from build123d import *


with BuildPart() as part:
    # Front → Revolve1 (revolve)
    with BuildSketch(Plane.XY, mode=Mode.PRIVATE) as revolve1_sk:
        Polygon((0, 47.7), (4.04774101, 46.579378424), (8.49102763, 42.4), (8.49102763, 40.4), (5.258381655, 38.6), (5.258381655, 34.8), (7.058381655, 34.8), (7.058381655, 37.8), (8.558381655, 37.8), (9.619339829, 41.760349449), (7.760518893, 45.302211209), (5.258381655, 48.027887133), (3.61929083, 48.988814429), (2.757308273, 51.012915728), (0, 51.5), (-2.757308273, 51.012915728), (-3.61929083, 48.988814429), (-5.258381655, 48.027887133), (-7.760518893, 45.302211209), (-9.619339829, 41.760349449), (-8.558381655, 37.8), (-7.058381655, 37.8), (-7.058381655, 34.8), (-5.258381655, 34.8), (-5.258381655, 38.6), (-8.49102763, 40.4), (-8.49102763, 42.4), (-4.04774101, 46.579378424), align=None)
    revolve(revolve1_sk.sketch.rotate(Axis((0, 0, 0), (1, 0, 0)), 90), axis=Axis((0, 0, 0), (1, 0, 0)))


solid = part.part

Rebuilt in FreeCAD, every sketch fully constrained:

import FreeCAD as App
import Part
import Sketcher

V = App.Vector

doc = App.newDocument("Part")
body = doc.addObject("PartDesign::Body", "Body")

sketch1 = body.newObject("Sketcher::SketchObject", "Sketch")
sketch1.AttachmentSupport = (doc.getObject("XY_Plane"), [""])
sketch1.MapMode = "FlatFace"
sketch1.addGeometry([
    Part.LineSegment(V(0, 47.7, 0), V(4, 46.6, 0)),
    Part.LineSegment(V(4, 46.6, 0), V(8.5, 42.4, 0)),
    Part.LineSegment(V(8.5, 42.4, 0), V(8.5, 40.4, 0)),
    Part.LineSegment(V(8.5, 40.4, 0), V(5.3, 38.6, 0)),
    Part.LineSegment(V(5.3, 38.6, 0), V(5.3, 34.8, 0)),
    Part.LineSegment(V(5.3, 34.8, 0), V(7.1, 34.8, 0)),
    Part.LineSegment(V(7.1, 34.8, 0), V(7.1, 37.8, 0)),
    Part.LineSegment(V(7.1, 37.8, 0), V(8.6, 37.8, 0)),
    Part.LineSegment(V(8.6, 37.8, 0), V(9.6, 41.8, 0)),
    Part.LineSegment(V(9.6, 41.8, 0), V(7.8, 45.3, 0)),
    Part.LineSegment(V(7.8, 45.3, 0), V(5.3, 48, 0)),
    Part.LineSegment(V(5.3, 48, 0), V(3.6, 49, 0)),
    Part.LineSegment(V(3.6, 49, 0), V(2.8, 51, 0)),
    Part.LineSegment(V(2.8, 51, 0), V(0, 51.5, 0)),
    Part.LineSegment(V(0, 51.5, 0), V(-2.8, 51, 0)),
    Part.LineSegment(V(-2.8, 51, 0), V(-3.6, 49, 0)),
    Part.LineSegment(V(-3.6, 49, 0), V(-5.3, 48, 0)),
    Part.LineSegment(V(-5.3, 48, 0), V(-7.8, 45.3, 0)),
    Part.LineSegment(V(-7.8, 45.3, 0), V(-9.6, 41.8, 0)),
    Part.LineSegment(V(-9.6, 41.8, 0), V(-8.6, 37.8, 0)),
    Part.LineSegment(V(-8.6, 37.8, 0), V(-7.1, 37.8, 0)),
    Part.LineSegment(V(-7.1, 37.8, 0), V(-7.1, 34.8, 0)),
    Part.LineSegment(V(-7.1, 34.8, 0), V(-5.3, 34.8, 0)),
    Part.LineSegment(V(-5.3, 34.8, 0), V(-5.3, 38.6, 0)),
    Part.LineSegment(V(-5.3, 38.6, 0), V(-8.5, 40.4, 0)),
    Part.LineSegment(V(-8.5, 40.4, 0), V(-8.5, 42.4, 0)),
    Part.LineSegment(V(-8.5, 42.4, 0), V(-4, 46.6, 0)),
    Part.LineSegment(V(-4, 46.6, 0), V(0, 47.7, 0)),
], False)
sketch1.addConstraint([
    Sketcher.Constraint("Coincident", 0, 2, 1, 1),
    Sketcher.Constraint("Coincident", 1, 2, 2, 1),
    Sketcher.Constraint("Coincident", 2, 2, 3, 1),
    Sketcher.Constraint("Coincident", 3, 2, 4, 1),
    Sketcher.Constraint("Coincident", 4, 2, 5, 1),
    Sketcher.Constraint("Coincident", 5, 2, 6, 1),
    Sketcher.Constraint("Coincident", 6, 2, 7, 1),
    Sketcher.Constraint("Coincident", 7, 2, 8, 1),
    Sketcher.Constraint("Coincident", 8, 2, 9, 1),
    Sketcher.Constraint("Coincident", 9, 2, 10, 1),
    Sketcher.Constraint("Coincident", 10, 2, 11, 1),
    Sketcher.Constraint("Coincident", 11, 2, 12, 1),
    Sketcher.Constraint("Coincident", 12, 2, 13, 1),
    Sketcher.Constraint("Coincident", 13, 2, 14, 1),
    Sketcher.Constraint("Coincident", 14, 2, 15, 1),
    Sketcher.Constraint("Coincident", 15, 2, 16, 1),
    Sketcher.Constraint("Coincident", 16, 2, 17, 1),
    Sketcher.Constraint("Coincident", 17, 2, 18, 1),
    Sketcher.Constraint("Coincident", 18, 2, 19, 1),
    Sketcher.Constraint("Coincident", 19, 2, 20, 1),
    Sketcher.Constraint("Coincident", 20, 2, 21, 1),
    Sketcher.Constraint("Coincident", 21, 2, 22, 1),
    Sketcher.Constraint("Coincident", 22, 2, 23, 1),
    Sketcher.Constraint("Coincident", 23, 2, 24, 1),
    Sketcher.Constraint("Coincident", 24, 2, 25, 1),
    Sketcher.Constraint("Coincident", 25, 2, 26, 1),
    Sketcher.Constraint("Coincident", 26, 2, 27, 1),
    Sketcher.Constraint("Coincident", 27, 2, 0, 1),
    Sketcher.Constraint("Vertical", 2),
    Sketcher.Constraint("Vertical", 4),
    Sketcher.Constraint("Horizontal", 5),
    Sketcher.Constraint("Vertical", 6),
    Sketcher.Constraint("Horizontal", 7),
    Sketcher.Constraint("Horizontal", 20),
    Sketcher.Constraint("Vertical", 21),
    Sketcher.Constraint("Horizontal", 22),
    Sketcher.Constraint("Vertical", 23),
    Sketcher.Constraint("Vertical", 25),
    Sketcher.Constraint("Symmetric", 12, 2, 14, 2, -2),
    Sketcher.Constraint("Symmetric", 11, 2, 15, 2, -2),
    Sketcher.Constraint("Symmetric", 10, 2, 16, 2, -2),
    Sketcher.Constraint("Symmetric", 9, 2, 17, 2, -2),
    Sketcher.Constraint("Symmetric", 8, 2, 18, 2, -2),
    Sketcher.Constraint("Symmetric", 7, 2, 19, 2, -2),
    Sketcher.Constraint("Symmetric", 5, 2, 21, 2, -2),
    Sketcher.Constraint("Symmetric", 3, 2, 23, 2, -2),
    Sketcher.Constraint("Symmetric", 2, 2, 24, 2, -2),
    Sketcher.Constraint("Symmetric", 0, 2, 26, 2, -2),
    Sketcher.Constraint("PointOnObject", 13, 2, -2),
    Sketcher.Constraint("PointOnObject", 27, 2, -2),
    Sketcher.Constraint("Horizontal", 1, 2, 25, 2),
    Sketcher.Constraint("Vertical", 4, 2, 10, 2),
    Sketcher.Constraint("Equal", 3, 10),
    Sketcher.Constraint("DistanceY", 2, 2, 2, 1, 2.0),
    Sketcher.Constraint("DistanceY", 6, 1, 6, 2, 3.0),
    Sketcher.Constraint("Distance", 9, 4.0),
    Sketcher.Constraint("DistanceX", 5, 1, 5, 2, 1.8),
    Sketcher.Constraint("DistanceX", 7, 1, 7, 2, 1.5),
    Sketcher.Constraint("DistanceY", 4, 2, 4, 1, 3.8),
    Sketcher.Constraint("Distance", 0, 4.2),
    Sketcher.Constraint("Distance", 1, 6.1),
    Sketcher.Constraint("Distance", 3, 3.7),
    Sketcher.Constraint("Distance", 8, 4.1),
    Sketcher.Constraint("Distance", 11, 1.9),
    Sketcher.Constraint("Distance", 12, 2.2),
    Sketcher.Constraint("Distance", 13, 2.8),
    Sketcher.Constraint("DistanceY", -1, 1, 1, 2, 42.4),
    Sketcher.Constraint("DistanceY", -1, 1, 3, 2, 38.6),
    Sketcher.Constraint("DistanceY", -1, 1, 13, 2, 51.5),
    Sketcher.Constraint("DistanceY", -1, 1, 27, 2, 47.7),
    Sketcher.Constraint("DistanceY", 11, 2, 12, 2, 2.024101),
    Sketcher.Constraint("DistanceX", 14, 2, 11, 2, 6.376599),
    Sketcher.Constraint("DistanceX", -1, 1, 0, 2, 4.047741),
    Sketcher.Constraint("DistanceX", -1, 1, 8, 2, 9.61934),
])
revolution = body.newObject("PartDesign::Revolution", "Revolution")
revolution.Profile = sketch1
revolution.ReferenceAxis = (sketch1, ["H_Axis"])
revolution.Angle = 360

doc.recompute()
